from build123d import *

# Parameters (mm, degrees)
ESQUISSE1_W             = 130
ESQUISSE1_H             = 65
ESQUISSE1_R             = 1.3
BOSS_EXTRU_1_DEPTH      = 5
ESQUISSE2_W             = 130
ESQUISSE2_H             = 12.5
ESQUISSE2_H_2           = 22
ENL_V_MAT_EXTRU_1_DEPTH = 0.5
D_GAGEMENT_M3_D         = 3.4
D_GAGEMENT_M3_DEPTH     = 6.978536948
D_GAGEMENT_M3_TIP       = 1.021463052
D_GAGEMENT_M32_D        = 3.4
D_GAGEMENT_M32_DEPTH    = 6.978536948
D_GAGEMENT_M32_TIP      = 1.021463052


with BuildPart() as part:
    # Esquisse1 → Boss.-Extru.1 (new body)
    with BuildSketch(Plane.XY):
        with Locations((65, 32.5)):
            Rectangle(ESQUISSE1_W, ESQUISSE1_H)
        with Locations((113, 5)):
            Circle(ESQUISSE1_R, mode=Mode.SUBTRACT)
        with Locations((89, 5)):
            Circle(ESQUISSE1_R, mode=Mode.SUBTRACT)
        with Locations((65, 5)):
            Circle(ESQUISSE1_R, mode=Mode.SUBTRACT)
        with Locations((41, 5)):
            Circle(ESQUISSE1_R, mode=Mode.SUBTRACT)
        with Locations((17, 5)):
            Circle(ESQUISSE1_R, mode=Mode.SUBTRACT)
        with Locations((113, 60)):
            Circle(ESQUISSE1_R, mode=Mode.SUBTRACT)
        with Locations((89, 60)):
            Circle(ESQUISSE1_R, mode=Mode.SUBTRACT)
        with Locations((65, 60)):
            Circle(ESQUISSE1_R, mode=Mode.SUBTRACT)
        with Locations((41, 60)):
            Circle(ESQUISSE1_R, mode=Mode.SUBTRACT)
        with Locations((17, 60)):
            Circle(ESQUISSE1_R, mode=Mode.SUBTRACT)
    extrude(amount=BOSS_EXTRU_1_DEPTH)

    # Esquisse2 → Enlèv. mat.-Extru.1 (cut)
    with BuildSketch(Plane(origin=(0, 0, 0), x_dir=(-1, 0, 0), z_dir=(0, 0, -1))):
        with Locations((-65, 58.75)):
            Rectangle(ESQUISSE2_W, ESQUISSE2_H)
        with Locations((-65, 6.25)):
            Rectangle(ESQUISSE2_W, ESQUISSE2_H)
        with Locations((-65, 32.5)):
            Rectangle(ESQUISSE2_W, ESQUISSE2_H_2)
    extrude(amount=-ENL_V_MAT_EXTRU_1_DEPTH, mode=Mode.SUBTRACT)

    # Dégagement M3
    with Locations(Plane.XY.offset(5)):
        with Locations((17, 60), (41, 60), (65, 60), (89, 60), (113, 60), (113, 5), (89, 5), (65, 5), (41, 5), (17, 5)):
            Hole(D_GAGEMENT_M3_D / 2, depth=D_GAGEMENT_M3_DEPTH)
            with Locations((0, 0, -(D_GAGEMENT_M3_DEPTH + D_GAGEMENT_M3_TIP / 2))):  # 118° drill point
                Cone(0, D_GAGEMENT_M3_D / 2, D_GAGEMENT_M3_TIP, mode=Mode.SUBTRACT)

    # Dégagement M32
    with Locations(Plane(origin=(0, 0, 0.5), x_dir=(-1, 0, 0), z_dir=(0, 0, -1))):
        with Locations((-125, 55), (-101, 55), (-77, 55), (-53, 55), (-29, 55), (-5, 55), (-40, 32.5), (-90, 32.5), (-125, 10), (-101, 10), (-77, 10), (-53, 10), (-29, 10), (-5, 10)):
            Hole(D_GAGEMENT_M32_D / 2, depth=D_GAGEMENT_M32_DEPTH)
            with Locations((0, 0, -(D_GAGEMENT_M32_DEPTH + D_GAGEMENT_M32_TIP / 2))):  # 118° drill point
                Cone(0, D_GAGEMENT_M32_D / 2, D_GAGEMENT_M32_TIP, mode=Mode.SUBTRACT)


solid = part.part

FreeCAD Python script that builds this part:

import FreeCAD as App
import Part
import Sketcher


def add_polygon(sketch, points):
    """Adds a closed chain of lines whose ends are joined by coincident constraints."""
    first, n = sketch.GeometryCount, len(points)
    for a, b in zip(points, points[1:] + points[:1]):
        sketch.addGeometry(Part.LineSegment(App.Vector(*a, 0), App.Vector(*b, 0)), False)
    for i in range(n):
        sketch.addConstraint(Sketcher.Constraint("Coincident", first + i, 2, first + (i + 1) % n, 1))

doc = App.newDocument("Part")
params = doc.addObject("Spreadsheet::Sheet", "Params")
for row, (alias, value) in enumerate([
    ("sketch1_diameter", "2.6 mm"),
    ("sketch1_width", "130 mm"),
    ("sketch1_height", "65 mm"),
    ("pad1_length", "5 mm"),
    ("sketch2_width", "130 mm"),
    ("sketch2_height", "22 mm"),
    ("sketch2_height2", "12.5 mm"),
    ("pocket1_length", "0.5 mm"),
    ("sketch3_diameter", "3.4 mm"),
    ("hole_diameter", "3.4 mm"),
    ("hole_depth", "6.978537 mm"),
    ("sketch4_diameter", "3.4 mm"),
    ("hole2_diameter", "3.4 mm"),
    ("hole2_depth", "6.978537 mm"),
], start=1):
    params.set(f"A{row}", alias)
    params.set(f"B{row}", "=" + value)
    params.setAlias(f"B{row}", alias)

body = doc.addObject("PartDesign::Body", "Body")

# Sketch on XY plane
sketch1 = body.newObject("Sketcher::SketchObject", "Sketch")
sketch1.AttachmentSupport = (doc.getObject("XY_Plane"), [""])
sketch1.MapMode = "FlatFace"
add_polygon(sketch1, [(0, 65), (0, 0), (130, 0), (130, 65)])  # lines 0-3
sketch1.addGeometry(Part.Circle(App.Vector(17, 5, 0), App.Vector(0, 0, 1), 1.3), False)  # 4
sketch1.addGeometry(Part.Circle(App.Vector(41, 5, 0), App.Vector(0, 0, 1), 1.3), False)  # 5
sketch1.addGeometry(Part.Circle(App.Vector(65, 5, 0), App.Vector(0, 0, 1), 1.3), False)  # 6
sketch1.addGeometry(Part.Circle(App.Vector(89, 5, 0), App.Vector(0, 0, 1), 1.3), False)  # 7
sketch1.addGeometry(Part.Circle(App.Vector(113, 5, 0), App.Vector(0, 0, 1), 1.3), False)  # 8
sketch1.addGeometry(Part.Circle(App.Vector(17, 60, 0), App.Vector(0, 0, 1), 1.3), False)  # 9
sketch1.addGeometry(Part.Circle(App.Vector(41, 60, 0), App.Vector(0, 0, 1), 1.3), False)  # 10
sketch1.addGeometry(Part.Circle(App.Vector(65, 60, 0), App.Vector(0, 0, 1), 1.3), False)  # 11
sketch1.addGeometry(Part.Circle(App.Vector(89, 60, 0), App.Vector(0, 0, 1), 1.3), False)  # 12
sketch1.addGeometry(Part.Circle(App.Vector(113, 60, 0), App.Vector(0, 0, 1), 1.3), False)  # 13
sketch1.addConstraint([
    Sketcher.Constraint("Vertical", 0),
    Sketcher.Constraint("Horizontal", 1),
    Sketcher.Constraint("Vertical", 2),
    Sketcher.Constraint("Horizontal", 3),
    Sketcher.Constraint("Coincident", 0, 2, -1, 1),
    Sketcher.Constraint("Equal", 4, 5),
    Sketcher.Constraint("Equal", 5, 6),
    Sketcher.Constraint("Equal", 6, 7),
    Sketcher.Constraint("Equal", 7, 8),
    Sketcher.Constraint("Equal", 8, 9),
    Sketcher.Constraint("Equal", 9, 10),
    Sketcher.Constraint("Equal", 10, 11),
    Sketcher.Constraint("Equal", 11, 12),
    Sketcher.Constraint("Equal", 12, 13),
    Sketcher.Constraint("Horizontal", 4, 3, 5, 3),
    Sketcher.Constraint("Horizontal", 5, 3, 6, 3),
    Sketcher.Constraint("Horizontal", 6, 3, 7, 3),
    Sketcher.Constraint("Horizontal", 7, 3, 8, 3),
    Sketcher.Constraint("Horizontal", 9, 3, 10, 3),
    Sketcher.Constraint("Horizontal", 10, 3, 11, 3),
    Sketcher.Constraint("Horizontal", 11, 3, 12, 3),
    Sketcher.Constraint("Horizontal", 12, 3, 13, 3),
    Sketcher.Constraint("Vertical", 4, 3, 9, 3),
    Sketcher.Constraint("Vertical", 5, 3, 10, 3),
    Sketcher.Constraint("Vertical", 6, 3, 11, 3),
    Sketcher.Constraint("Vertical", 7, 3, 12, 3),
    Sketcher.Constraint("Vertical", 8, 3, 13, 3),
    Sketcher.Constraint("Diameter", 4, 2.6),
    Sketcher.Constraint("DistanceX", 1, 1, 1, 2, 130.0),
    Sketcher.Constraint("DistanceY", 0, 2, 0, 1, 65.0),
    Sketcher.Constraint("DistanceX", -1, 1, 4, 3, 17.0),
    Sketcher.Constraint("DistanceY", -1, 1, 4, 3, 5.0),
    Sketcher.Constraint("DistanceX", -1, 1, 5, 3, 41.0),
    Sketcher.Constraint("DistanceX", -1, 1, 6, 3, 65.0),
    Sketcher.Constraint("DistanceX", -1, 1, 7, 3, 89.0),
    Sketcher.Constraint("DistanceX", -1, 1, 8, 3, 113.0),
    Sketcher.Constraint("DistanceY", -1, 1, 9, 3, 60.0),
])
sketch1.setExpression("Constraints[31]", "Params.sketch1_diameter")
sketch1.setExpression("Constraints[32]", "Params.sketch1_width")
sketch1.setExpression("Constraints[33]", "Params.sketch1_height")
pad1 = body.newObject("PartDesign::Pad", "Pad")
pad1.Profile = sketch1
pad1.setExpression("Length", "Params.pad1_length")

# Sketch on XY plane
sketch2 = body.newObject("Sketcher::SketchObject", "Sketch001")
sketch2.AttachmentSupport = (doc.getObject("XY_Plane"), [""])
sketch2.MapMode = "FlatFace"
add_polygon(sketch2, [(130, 65), (130, 52.5), (0, 52.5), (0, 65)])  # lines 0-3
add_polygon(sketch2, [(130, 12.5), (130, 0), (0, 0), (0, 12.5)])  # lines 4-7
add_polygon(sketch2, [(130, 43.5), (130, 21.5), (0, 21.5), (0, 43.5)])  # lines 8-11
sketch2.addConstraint([
    Sketcher.Constraint("Vertical", 0),
    Sketcher.Constraint("Horizontal", 1),
    Sketcher.Constraint("Vertical", 2),
    Sketcher.Constraint("Horizontal", 3),
    Sketcher.Constraint("Vertical", 4),
    Sketcher.Constraint("Horizontal", 5),
    Sketcher.Constraint("Vertical", 6),
    Sketcher.Constraint("Horizontal", 7),
    Sketcher.Constraint("Vertical", 8),
    Sketcher.Constraint("Horizontal", 9),
    Sketcher.Constraint("Vertical", 10),
    Sketcher.Constraint("Horizontal", 11),
    Sketcher.Constraint("Coincident", 5, 2, -1, 1),
    Sketcher.Constraint("PointOnObject", 1, 2, -2),
    Sketcher.Constraint("PointOnObject", 9, 2, -2),
    Sketcher.Constraint("Vertical", 3, 2, 4, 2),
    Sketcher.Constraint("Vertical", 7, 2, 8, 2),
    Sketcher.Constraint("Equal", 2, 4),
    Sketcher.Constraint("DistanceX", 1, 2, 1, 1, 130.0),
    Sketcher.Constraint("DistanceY", 8, 2, 8, 1, 22.0),
    Sketcher.Constraint("DistanceY", 0, 2, 0, 1, 12.5),
    Sketcher.Constraint("DistanceY", -1, 1, 2, 2, 65.0),
    Sketcher.Constraint("DistanceY", 7, 2, 8, 2, 9.0),
])
sketch2.setExpression("Constraints[30]", "Params.sketch2_width")
sketch2.setExpression("Constraints[31]", "Params.sketch2_height")
sketch2.setExpression("Constraints[32]", "Params.sketch2_height2")
pocket1 = body.newObject("PartDesign::Pocket", "Pocket")
pocket1.Profile = sketch2
pocket1.setExpression("Length", "Params.pocket1_length")
pocket1.Reversed = True

# Sketch on XY plane
sketch3 = body.newObject("Sketcher::SketchObject", "Sketch002")
sketch3.AttachmentSupport = (doc.getObject("XY_Plane"), [""])
sketch3.MapMode = "FlatFace"
sketch3.AttachmentOffset = App.Placement(App.Vector(0, 0, 5), App.Rotation())
sketch3.addGeometry([
    Part.Circle(App.Vector(17, 60, 0), App.Vector(0, 0, 1), 1.7),  # 0
    Part.Circle(App.Vector(41, 60, 0), App.Vector(0, 0, 1), 1.7),  # 1
    Part.Circle(App.Vector(65, 60, 0), App.Vector(0, 0, 1), 1.7),  # 2
    Part.Circle(App.Vector(89, 60, 0), App.Vector(0, 0, 1), 1.7),  # 3
    Part.Circle(App.Vector(113, 60, 0), App.Vector(0, 0, 1), 1.7),  # 4
    Part.Circle(App.Vector(113, 5, 0), App.Vector(0, 0, 1), 1.7),  # 5
    Part.Circle(App.Vector(89, 5, 0), App.Vector(0, 0, 1), 1.7),  # 6
    Part.Circle(App.Vector(65, 5, 0), App.Vector(0, 0, 1), 1.7),  # 7
    Part.Circle(App.Vector(41, 5, 0), App.Vector(0, 0, 1), 1.7),  # 8
    Part.Circle(App.Vector(17, 5, 0), App.Vector(0, 0, 1), 1.7),  # 9
], False)
sketch3.addConstraint([
    Sketcher.Constraint("Equal", 0, 1),
    Sketcher.Constraint("Equal", 1, 2),
    Sketcher.Constraint("Equal", 2, 3),
    Sketcher.Constraint("Equal", 3, 4),
    Sketcher.Constraint("Equal", 4, 5),
    Sketcher.Constraint("Equal", 5, 6),
    Sketcher.Constraint("Equal", 6, 7),
    Sketcher.Constraint("Equal", 7, 8),
    Sketcher.Constraint("Equal", 8, 9),
    Sketcher.Constraint("Horizontal", 0, 3, 1, 3),
    Sketcher.Constraint("Horizontal", 1, 3, 2, 3),
    Sketcher.Constraint("Horizontal", 2, 3, 3, 3),
    Sketcher.Constraint("Horizontal", 3, 3, 4, 3),
    Sketcher.Constraint("Horizontal", 5, 3, 6, 3),
    Sketcher.Constraint("Horizontal", 6, 3, 7, 3),
    Sketcher.Constraint("Horizontal", 7, 3, 8, 3),
    Sketcher.Constraint("Horizontal", 8, 3, 9, 3),
    Sketcher.Constraint("Vertical", 4, 3, 5, 3),
    Sketcher.Constraint("Vertical", 3, 3, 6, 3),
    Sketcher.Constraint("Vertical", 2, 3, 7, 3),
    Sketcher.Constraint("Vertical", 1, 3, 8, 3),
    Sketcher.Constraint("Vertical", 0, 3, 9, 3),
    Sketcher.Constraint("Diameter", 0, 3.4),
    Sketcher.Constraint("DistanceX", -1, 1, 0, 3, 17.0),
    Sketcher.Constraint("DistanceY", -1, 1, 0, 3, 60.0),
    Sketcher.Constraint("DistanceX", -1, 1, 1, 3, 41.0),
    Sketcher.Constraint("DistanceX", -1, 1, 2, 3, 65.0),
    Sketcher.Constraint("DistanceX", -1, 1, 3, 3, 89.0),
    Sketcher.Constraint("DistanceX", -1, 1, 4, 3, 113.0),
    Sketcher.Constraint("DistanceY", -1, 1, 5, 3, 5.0),
])
sketch3.setExpression("Constraints[22]", "Params.sketch3_diameter")
doc.recompute()
hole = body.newObject("PartDesign::Hole", "Hole")
hole.Profile = sketch3
hole.ThreadType = "None"
hole.setExpression("Diameter", "Params.hole_diameter")
hole.DepthType = "Dimension"
hole.setExpression("Depth", "Params.hole_depth")
hole.DrillPoint = "Angled"
hole.DrillPointAngle = 118

# Sketch on XY plane
sketch4 = body.newObject("Sketcher::SketchObject", "Sketch003")
sketch4.AttachmentSupport = (doc.getObject("XY_Plane"), [""])
sketch4.MapMode = "FlatFace"
sketch4.AttachmentOffset = App.Placement(App.Vector(0, 0, 0.5), App.Rotation())
sketch4.addGeometry([
    Part.Circle(App.Vector(125, 55, 0), App.Vector(0, 0, 1), 1.7),  # 0
    Part.Circle(App.Vector(101, 55, 0), App.Vector(0, 0, 1), 1.7),  # 1
    Part.Circle(App.Vector(77, 55, 0), App.Vector(0, 0, 1), 1.7),  # 2
    Part.Circle(App.Vector(53, 55, 0), App.Vector(0, 0, 1), 1.7),  # 3
    Part.Circle(App.Vector(29, 55, 0), App.Vector(0, 0, 1), 1.7),  # 4
    Part.Circle(App.Vector(5, 55, 0), App.Vector(0, 0, 1), 1.7),  # 5
    Part.Circle(App.Vector(40, 32.5, 0), App.Vector(0, 0, 1), 1.7),  # 6
    Part.Circle(App.Vector(90, 32.5, 0), App.Vector(0, 0, 1), 1.7),  # 7
    Part.Circle(App.Vector(125, 10, 0), App.Vector(0, 0, 1), 1.7),  # 8
    Part.Circle(App.Vector(101, 10, 0), App.Vector(0, 0, 1), 1.7),  # 9
    Part.Circle(App.Vector(77, 10, 0), App.Vector(0, 0, 1), 1.7),  # 10
    Part.Circle(App.Vector(53, 10, 0), App.Vector(0, 0, 1), 1.7),  # 11
    Part.Circle(App.Vector(29, 10, 0), App.Vector(0, 0, 1), 1.7),  # 12
    Part.Circle(App.Vector(5, 10, 0), App.Vector(0, 0, 1), 1.7),  # 13
], False)
sketch4.addConstraint([
    Sketcher.Constraint("Equal", 0, 1),
    Sketcher.Constraint("Equal", 1, 2),
    Sketcher.Constraint("Equal", 2, 3),
    Sketcher.Constraint("Equal", 3, 4),
    Sketcher.Constraint("Equal", 4, 5),
    Sketcher.Constraint("Equal", 5, 6),
    Sketcher.Constraint("Equal", 6, 7),
    Sketcher.Constraint("Equal", 7, 8),
    Sketcher.Constraint("Equal", 8, 9),
    Sketcher.Constraint("Equal", 9, 10),
    Sketcher.Constraint("Equal", 10, 11),
    Sketcher.Constraint("Equal", 11, 12),
    Sketcher.Constraint("Equal", 12, 13),
    Sketcher.Constraint("Horizontal", 0, 3, 1, 3),
    Sketcher.Constraint("Horizontal", 1, 3, 2, 3),
    Sketcher.Constraint("Horizontal", 2, 3, 3, 3),
    Sketcher.Constraint("Horizontal", 3, 3, 4, 3),
    Sketcher.Constraint("Horizontal", 4, 3, 5, 3),
    Sketcher.Constraint("Horizontal", 6, 3, 7, 3),
    Sketcher.Constraint("Horizontal", 8, 3, 9, 3),
    Sketcher.Constraint("Horizontal", 9, 3, 10, 3),
    Sketcher.Constraint("Horizontal", 10, 3, 11, 3),
    Sketcher.Constraint("Horizontal", 11, 3, 12, 3),
    Sketcher.Constraint("Horizontal", 12, 3, 13, 3),
    Sketcher.Constraint("Vertical", 0, 3, 8, 3),
    Sketcher.Constraint("Vertical", 1, 3, 9, 3),
    Sketcher.Constraint("Vertical", 2, 3, 10, 3),
    Sketcher.Constraint("Vertical", 3, 3, 11, 3),
    Sketcher.Constraint("Vertical", 4, 3, 12, 3),
    Sketcher.Constraint("Vertical", 5, 3, 13, 3),
    Sketcher.Constraint("Diameter", 0, 3.4),
    Sketcher.Constraint("DistanceX", -1, 1, 0, 3, 125.0),
    Sketcher.Constraint("DistanceY", -1, 1, 0, 3, 55.0),
    Sketcher.Constraint("DistanceX", -1, 1, 1, 3, 101.0),
    Sketcher.Constraint("DistanceX", -1, 1, 2, 3, 77.0),
    Sketcher.Constraint("DistanceX", -1, 1, 3, 3, 53.0),
    Sketcher.Constraint("DistanceX", -1, 1, 4, 3, 29.0),
    Sketcher.Constraint("DistanceX", -1, 1, 5, 3, 5.0),
    Sketcher.Constraint("DistanceX", -1, 1, 6, 3, 40.0),
    Sketcher.Constraint("DistanceX", -1, 1, 7, 3, 90.0),
    Sketcher.Constraint("DistanceY", -1, 1, 8, 3, 10.0),
    Sketcher.Constraint("DistanceY", -1, 1, 6, 3, 32.5),
])
sketch4.setExpression("Constraints[30]", "Params.sketch4_diameter")
doc.recompute()
hole2 = body.newObject("PartDesign::Hole", "Hole001")
hole2.Profile = sketch4
hole2.ThreadType = "None"
hole2.setExpression("Diameter", "Params.hole2_diameter")
hole2.DepthType = "Dimension"
hole2.setExpression("Depth", "Params.hole2_depth")
hole2.DrillPoint = "Angled"
hole2.DrillPointAngle = 118
hole2.Reversed = True

doc.recompute()
